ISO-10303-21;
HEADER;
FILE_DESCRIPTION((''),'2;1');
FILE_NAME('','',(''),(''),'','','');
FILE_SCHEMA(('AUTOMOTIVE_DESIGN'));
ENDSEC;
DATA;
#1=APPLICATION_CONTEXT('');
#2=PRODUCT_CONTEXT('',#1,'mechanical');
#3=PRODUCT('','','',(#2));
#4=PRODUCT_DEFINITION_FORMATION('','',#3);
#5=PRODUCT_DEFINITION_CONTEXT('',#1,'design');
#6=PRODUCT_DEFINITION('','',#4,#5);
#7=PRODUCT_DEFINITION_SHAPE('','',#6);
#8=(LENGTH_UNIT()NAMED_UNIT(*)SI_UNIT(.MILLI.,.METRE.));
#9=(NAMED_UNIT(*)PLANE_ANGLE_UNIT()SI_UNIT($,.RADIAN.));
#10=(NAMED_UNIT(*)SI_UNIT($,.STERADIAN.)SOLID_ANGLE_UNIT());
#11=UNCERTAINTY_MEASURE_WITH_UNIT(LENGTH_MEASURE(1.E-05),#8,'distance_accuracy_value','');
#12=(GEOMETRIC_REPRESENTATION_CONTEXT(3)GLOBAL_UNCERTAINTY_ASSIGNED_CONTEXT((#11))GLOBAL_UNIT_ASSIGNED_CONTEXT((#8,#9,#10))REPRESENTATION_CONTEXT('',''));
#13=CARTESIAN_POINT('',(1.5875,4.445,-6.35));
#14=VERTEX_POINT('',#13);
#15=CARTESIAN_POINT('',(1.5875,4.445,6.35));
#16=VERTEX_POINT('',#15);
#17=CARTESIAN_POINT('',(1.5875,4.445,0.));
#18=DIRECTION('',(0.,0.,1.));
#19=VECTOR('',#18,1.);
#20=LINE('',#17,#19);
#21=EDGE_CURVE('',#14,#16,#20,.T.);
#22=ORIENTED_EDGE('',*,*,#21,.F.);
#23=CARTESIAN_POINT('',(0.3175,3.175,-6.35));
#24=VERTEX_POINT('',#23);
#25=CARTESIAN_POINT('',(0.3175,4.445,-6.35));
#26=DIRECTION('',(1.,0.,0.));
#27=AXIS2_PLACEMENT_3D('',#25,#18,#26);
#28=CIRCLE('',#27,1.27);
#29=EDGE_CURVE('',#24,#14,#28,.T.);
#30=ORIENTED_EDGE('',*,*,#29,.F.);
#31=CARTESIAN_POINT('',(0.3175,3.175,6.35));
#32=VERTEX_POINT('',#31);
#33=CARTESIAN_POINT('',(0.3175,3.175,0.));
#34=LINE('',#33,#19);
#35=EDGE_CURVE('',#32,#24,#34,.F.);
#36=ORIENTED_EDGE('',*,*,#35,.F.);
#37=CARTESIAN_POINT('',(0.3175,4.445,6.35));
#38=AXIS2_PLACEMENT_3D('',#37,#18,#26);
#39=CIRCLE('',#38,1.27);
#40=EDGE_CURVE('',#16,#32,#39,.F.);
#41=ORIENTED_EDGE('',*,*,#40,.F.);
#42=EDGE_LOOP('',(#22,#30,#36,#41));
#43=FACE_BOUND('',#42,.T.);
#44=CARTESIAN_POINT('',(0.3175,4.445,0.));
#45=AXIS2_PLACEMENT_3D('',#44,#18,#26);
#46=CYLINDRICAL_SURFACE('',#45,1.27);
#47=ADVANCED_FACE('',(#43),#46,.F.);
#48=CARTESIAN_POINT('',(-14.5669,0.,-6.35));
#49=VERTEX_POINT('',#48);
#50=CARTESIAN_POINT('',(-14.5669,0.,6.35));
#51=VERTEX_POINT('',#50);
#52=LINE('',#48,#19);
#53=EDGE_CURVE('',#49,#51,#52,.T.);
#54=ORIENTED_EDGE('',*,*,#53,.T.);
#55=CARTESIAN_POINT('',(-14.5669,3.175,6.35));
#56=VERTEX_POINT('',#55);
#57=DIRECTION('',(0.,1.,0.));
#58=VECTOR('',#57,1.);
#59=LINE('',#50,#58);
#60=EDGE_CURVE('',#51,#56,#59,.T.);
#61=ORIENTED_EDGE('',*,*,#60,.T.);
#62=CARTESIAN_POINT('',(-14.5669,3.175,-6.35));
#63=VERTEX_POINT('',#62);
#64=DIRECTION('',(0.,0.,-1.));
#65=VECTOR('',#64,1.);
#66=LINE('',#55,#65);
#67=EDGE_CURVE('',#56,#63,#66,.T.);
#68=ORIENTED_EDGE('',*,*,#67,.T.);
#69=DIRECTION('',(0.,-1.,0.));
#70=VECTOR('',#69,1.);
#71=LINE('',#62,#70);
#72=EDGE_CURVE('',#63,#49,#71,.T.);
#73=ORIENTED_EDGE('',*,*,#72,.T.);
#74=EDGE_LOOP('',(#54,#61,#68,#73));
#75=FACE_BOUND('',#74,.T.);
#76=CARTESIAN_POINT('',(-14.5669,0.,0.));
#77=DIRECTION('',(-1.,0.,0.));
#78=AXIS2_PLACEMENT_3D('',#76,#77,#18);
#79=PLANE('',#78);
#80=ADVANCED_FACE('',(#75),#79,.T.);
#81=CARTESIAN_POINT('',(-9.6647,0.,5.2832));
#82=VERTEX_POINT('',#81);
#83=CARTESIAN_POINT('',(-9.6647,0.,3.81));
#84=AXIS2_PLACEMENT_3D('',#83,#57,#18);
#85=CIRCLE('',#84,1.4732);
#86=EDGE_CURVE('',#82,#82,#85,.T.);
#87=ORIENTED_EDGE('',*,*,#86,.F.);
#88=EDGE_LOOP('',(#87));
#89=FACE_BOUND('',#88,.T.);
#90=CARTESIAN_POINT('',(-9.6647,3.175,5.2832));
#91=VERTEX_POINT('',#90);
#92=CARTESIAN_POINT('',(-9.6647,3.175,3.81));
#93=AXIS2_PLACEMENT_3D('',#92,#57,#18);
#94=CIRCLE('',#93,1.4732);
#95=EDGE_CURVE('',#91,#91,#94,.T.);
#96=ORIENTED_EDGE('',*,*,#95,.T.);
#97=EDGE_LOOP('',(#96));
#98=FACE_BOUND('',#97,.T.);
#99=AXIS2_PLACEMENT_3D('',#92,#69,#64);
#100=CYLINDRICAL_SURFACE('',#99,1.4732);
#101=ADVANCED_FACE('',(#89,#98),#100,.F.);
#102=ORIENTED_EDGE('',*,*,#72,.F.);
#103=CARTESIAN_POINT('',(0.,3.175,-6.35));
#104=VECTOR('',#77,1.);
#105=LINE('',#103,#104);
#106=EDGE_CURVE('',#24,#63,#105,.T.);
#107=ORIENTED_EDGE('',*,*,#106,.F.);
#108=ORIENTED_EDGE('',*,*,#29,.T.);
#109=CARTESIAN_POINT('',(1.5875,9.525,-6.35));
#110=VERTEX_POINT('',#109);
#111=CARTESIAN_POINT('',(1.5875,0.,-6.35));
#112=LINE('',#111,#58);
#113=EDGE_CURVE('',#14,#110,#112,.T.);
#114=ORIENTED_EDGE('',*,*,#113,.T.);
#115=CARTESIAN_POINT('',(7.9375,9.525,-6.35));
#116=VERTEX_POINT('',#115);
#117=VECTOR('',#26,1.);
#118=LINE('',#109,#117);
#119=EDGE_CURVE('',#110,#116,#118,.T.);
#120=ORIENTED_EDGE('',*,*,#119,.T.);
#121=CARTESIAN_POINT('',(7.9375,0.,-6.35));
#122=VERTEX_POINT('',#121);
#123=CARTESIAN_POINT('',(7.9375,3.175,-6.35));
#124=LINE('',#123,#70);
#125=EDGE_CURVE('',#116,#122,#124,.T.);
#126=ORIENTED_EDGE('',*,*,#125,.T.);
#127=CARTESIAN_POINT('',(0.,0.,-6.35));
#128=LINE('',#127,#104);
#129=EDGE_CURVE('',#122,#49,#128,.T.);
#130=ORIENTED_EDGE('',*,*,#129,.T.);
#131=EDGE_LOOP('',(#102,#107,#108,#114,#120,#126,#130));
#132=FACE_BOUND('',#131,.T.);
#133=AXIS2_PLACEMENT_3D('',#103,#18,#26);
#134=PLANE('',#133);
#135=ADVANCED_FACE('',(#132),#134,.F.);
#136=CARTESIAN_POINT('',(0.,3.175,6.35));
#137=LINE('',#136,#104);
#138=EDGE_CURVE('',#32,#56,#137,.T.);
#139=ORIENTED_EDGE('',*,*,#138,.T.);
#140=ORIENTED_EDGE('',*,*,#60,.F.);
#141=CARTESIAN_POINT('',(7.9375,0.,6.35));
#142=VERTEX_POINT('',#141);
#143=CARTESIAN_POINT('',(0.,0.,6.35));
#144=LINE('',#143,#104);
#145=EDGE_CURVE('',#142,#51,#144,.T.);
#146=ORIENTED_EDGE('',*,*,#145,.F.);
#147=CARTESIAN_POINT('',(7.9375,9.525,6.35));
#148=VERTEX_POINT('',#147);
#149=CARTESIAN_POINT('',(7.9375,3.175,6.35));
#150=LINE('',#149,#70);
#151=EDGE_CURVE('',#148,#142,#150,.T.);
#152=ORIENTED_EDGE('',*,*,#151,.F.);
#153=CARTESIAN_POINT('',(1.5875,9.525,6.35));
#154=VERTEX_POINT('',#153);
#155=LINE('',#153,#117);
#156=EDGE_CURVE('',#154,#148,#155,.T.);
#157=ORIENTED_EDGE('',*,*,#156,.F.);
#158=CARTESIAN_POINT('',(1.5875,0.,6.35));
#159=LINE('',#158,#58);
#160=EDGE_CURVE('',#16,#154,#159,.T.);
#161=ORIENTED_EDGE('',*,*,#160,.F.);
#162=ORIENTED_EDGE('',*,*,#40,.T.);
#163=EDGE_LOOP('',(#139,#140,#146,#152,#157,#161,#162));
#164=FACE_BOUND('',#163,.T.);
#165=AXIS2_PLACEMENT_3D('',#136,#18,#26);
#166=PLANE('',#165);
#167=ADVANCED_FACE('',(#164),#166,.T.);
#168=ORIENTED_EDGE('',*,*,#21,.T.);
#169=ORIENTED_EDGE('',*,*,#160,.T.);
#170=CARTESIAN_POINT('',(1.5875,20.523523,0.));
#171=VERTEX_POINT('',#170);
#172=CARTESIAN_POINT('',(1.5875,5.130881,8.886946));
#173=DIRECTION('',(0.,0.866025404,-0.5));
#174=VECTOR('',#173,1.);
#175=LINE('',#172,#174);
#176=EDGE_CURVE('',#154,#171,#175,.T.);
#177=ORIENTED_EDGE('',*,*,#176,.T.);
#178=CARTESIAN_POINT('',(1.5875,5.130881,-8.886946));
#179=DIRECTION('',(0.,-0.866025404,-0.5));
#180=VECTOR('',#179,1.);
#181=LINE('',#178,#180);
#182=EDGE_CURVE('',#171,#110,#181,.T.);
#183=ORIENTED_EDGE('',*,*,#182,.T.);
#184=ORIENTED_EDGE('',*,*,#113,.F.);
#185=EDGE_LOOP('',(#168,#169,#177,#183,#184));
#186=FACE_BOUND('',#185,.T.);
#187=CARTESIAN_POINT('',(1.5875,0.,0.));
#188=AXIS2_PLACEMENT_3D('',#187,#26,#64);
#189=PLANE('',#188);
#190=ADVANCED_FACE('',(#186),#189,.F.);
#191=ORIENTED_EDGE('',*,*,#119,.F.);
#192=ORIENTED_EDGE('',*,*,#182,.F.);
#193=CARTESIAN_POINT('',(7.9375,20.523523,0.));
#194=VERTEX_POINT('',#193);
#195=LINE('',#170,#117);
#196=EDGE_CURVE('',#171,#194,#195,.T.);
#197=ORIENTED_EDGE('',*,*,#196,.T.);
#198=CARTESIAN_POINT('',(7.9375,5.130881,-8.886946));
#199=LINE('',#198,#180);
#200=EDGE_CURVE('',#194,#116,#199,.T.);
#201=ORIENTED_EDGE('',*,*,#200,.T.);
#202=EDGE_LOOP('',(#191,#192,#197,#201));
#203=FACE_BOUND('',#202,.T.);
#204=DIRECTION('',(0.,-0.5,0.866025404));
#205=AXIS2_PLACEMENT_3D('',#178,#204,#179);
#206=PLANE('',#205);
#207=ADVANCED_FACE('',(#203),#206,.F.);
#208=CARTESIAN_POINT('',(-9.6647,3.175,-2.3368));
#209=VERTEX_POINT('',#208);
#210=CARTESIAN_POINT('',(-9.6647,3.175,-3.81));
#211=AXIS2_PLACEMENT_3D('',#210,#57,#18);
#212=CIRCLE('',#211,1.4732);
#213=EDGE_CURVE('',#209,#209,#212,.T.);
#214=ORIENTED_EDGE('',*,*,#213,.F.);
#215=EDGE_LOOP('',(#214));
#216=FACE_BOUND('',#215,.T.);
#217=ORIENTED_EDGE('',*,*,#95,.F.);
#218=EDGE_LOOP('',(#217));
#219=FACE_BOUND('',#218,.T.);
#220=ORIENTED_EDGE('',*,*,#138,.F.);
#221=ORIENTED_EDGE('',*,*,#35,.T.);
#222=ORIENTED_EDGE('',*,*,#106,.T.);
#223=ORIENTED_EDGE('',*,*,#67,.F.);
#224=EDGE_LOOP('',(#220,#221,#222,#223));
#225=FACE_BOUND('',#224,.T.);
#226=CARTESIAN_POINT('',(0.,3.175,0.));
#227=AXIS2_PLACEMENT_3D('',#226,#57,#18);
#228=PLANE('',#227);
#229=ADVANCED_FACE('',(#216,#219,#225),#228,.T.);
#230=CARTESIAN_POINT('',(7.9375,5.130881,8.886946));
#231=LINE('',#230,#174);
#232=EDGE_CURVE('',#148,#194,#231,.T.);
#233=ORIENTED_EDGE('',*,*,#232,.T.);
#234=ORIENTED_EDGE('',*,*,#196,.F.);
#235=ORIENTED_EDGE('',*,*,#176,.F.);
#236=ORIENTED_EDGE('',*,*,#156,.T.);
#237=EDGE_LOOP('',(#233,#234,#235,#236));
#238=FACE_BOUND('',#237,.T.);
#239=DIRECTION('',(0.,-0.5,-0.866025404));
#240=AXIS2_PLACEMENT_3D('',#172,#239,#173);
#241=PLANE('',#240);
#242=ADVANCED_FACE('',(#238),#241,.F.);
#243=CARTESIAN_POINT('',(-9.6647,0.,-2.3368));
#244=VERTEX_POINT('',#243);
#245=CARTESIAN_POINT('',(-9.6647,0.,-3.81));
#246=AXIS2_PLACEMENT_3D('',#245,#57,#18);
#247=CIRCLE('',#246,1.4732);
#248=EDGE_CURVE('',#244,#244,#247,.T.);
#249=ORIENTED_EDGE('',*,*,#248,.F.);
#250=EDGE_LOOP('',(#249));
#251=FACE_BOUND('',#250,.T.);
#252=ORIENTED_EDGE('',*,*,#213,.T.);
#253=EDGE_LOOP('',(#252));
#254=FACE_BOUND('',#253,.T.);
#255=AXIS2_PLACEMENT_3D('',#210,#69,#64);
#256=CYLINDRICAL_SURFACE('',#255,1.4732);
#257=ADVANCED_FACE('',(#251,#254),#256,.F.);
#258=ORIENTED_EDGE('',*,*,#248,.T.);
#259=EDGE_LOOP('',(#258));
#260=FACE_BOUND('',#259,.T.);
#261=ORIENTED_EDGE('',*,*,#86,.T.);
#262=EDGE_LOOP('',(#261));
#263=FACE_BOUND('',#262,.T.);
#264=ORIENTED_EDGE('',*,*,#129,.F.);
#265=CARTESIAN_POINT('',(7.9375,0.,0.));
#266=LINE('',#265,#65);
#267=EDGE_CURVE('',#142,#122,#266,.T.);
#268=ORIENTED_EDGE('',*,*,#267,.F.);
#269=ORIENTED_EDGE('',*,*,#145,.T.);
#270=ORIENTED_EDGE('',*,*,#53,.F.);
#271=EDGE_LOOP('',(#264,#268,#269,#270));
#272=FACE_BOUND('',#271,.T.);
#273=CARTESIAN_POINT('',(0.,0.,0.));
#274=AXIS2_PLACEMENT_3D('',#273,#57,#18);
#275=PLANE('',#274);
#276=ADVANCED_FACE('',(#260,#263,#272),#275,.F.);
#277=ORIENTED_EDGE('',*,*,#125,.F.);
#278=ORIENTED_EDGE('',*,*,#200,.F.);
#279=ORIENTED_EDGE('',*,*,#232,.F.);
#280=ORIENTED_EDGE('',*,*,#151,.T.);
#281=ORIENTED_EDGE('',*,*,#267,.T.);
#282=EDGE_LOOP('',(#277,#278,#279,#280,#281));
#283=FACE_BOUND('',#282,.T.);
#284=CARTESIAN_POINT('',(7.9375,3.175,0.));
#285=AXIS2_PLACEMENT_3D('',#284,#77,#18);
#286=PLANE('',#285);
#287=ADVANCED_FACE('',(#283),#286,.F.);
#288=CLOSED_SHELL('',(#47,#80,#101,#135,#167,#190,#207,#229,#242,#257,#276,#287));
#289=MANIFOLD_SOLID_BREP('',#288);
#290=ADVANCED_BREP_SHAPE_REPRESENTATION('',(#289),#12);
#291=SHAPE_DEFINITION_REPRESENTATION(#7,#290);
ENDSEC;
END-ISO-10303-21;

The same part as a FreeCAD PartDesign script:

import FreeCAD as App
import Part
import Sketcher
Q = App.Units.Quantity


def edges_at(feature, points):
    """Names of the edges that pass closest to the given points."""
    edges = feature.Shape.Edges
    near = lambda p: min(range(len(edges)), key=lambda i: edges[i].distToShape(Part.Vertex(*p))[0])
    return sorted({f"Edge{near(p) + 1}" for p in points})


def add_polygon(sketch, points):
    """Adds a closed chain of lines whose ends are joined by coincident constraints."""
    first, n = sketch.GeometryCount, len(points)
    for a, b in zip(points, points[1:] + points[:1]):
        sketch.addGeometry(Part.LineSegment(App.Vector(*a, 0), App.Vector(*b, 0)), False)
    for i in range(n):
        sketch.addConstraint(Sketcher.Constraint("Coincident", first + i, 2, first + (i + 1) % n, 1))

doc = App.newDocument("Part")
body = doc.addObject("PartDesign::Body", "Body")

# Sketch on XZ plane
sketch1 = body.newObject("Sketcher::SketchObject", "Sketch")
sketch1.AttachmentSupport = (doc.getObject("XZ_Plane"), [""])
sketch1.MapMode = "FlatFace"
add_polygon(sketch1, [(-11.4, -6.3), (-11.4, 6.3), (7.9, 6.3), (7.9, -6.3)])  # lines 0-3
sketch1.addGeometry(Part.Circle(App.Vector(-9.7, 3.8, 0), App.Vector(0, 0, 1), 1.5), False)  # 4
sketch1.addGeometry(Part.Circle(App.Vector(-9.7, -3.8, 0), App.Vector(0, 0, 1), 1.5), False)  # 5
sketch1.addConstraint([
    Sketcher.Constraint("Vertical", 0),
    Sketcher.Constraint("Horizontal", 1),
    Sketcher.Constraint("Vertical", 2),
    Sketcher.Constraint("Horizontal", 3),
    Sketcher.Constraint("Equal", 4, 5),
    Sketcher.Constraint("Symmetric", 4, 3, 5, 3, -1),
    Sketcher.Constraint("Diameter", 4, Q("0.116 in")),
    Sketcher.Constraint("DistanceY", 0, 1, 0, 2, Q("0.5 in")),
    Sketcher.Constraint("DistanceY", 5, 3, 4, 3, Q("0.3 in")),
    Sketcher.Constraint("DistanceY", 4, 3, 0, 2, Q("0.1 in")),
    Sketcher.Constraint("DistanceX", 1, 1, 1, 2, Q("0.761 in")),
    Sketcher.Constraint("DistanceX", -1, 1, 1, 2, Q("0.3125 in")),
    Sketcher.Constraint("DistanceX", 0, 2, 4, 3, Q("0.068 in")),
])
pad1 = body.newObject("PartDesign::Pad", "Pad")
pad1.Profile = sketch1
pad1.Length = Q("0.125 in")
pad1.Reversed = True

# Sketch on YZ plane
sketch2 = body.newObject("Sketcher::SketchObject", "Sketch001")
sketch2.AttachmentSupport = (doc.getObject("YZ_Plane"), [""])
sketch2.MapMode = "FlatFace"
sketch2.AttachmentOffset = App.Placement(App.Vector(0, 0, 0.3125 * 25.4), App.Rotation())
add_polygon(sketch2, [(10, 6), (3, 6), (3, -6), (10, -6), (21, 0)])  # lines 0-4
sketch2.addConstraint([
    Sketcher.Constraint("Horizontal", 0),
    Sketcher.Constraint("Vertical", 1),
    Sketcher.Constraint("Horizontal", 2),
    Sketcher.Constraint("Symmetric", 2, 2, 4, 2, -1),
    Sketcher.Constraint("PointOnObject", 3, 2, -1),
    Sketcher.Constraint("DistanceY", 1, 2, 1, 1, Q("0.5 in")),
    Sketcher.Constraint("Angle", 3, Q("30 deg")),
    Sketcher.Constraint("DistanceX", 0, 2, 0, 1, Q("0.25 in")),
    Sketcher.Constraint("DistanceX", -1, 1, 0, 2, Q("0.125 in")),
])
pad2 = body.newObject("PartDesign::Pad", "Pad001")
pad2.Profile = sketch2
pad2.Length = Q("0.25 in")
pad2.Reversed = True

# Sketch on YZ plane
sketch3 = body.newObject("Sketcher::SketchObject", "Sketch002")
sketch3.AttachmentSupport = (doc.getObject("YZ_Plane"), [""])
sketch3.MapMode = "FlatFace"
sketch3.AttachmentOffset = App.Placement(App.Vector(0, 0, -0.4485 * 25.4), App.Rotation())
add_polygon(sketch3, [(3.2, -6.3), (0, -6.3), (0, 6.3), (3.2, 6.3)])  # lines 0-3
sketch3.addConstraint([
    Sketcher.Constraint("Horizontal", 0),
    Sketcher.Constraint("Vertical", 1),
    Sketcher.Constraint("Horizontal", 2),
    Sketcher.Constraint("Vertical", 3),
    Sketcher.Constraint("Symmetric", 0, 2, 1, 2, -1, 1),
    Sketcher.Constraint("DistanceY", 1, 1, 1, 2, Q("0.5 in")),
    Sketcher.Constraint("DistanceX", 0, 2, 0, 1, Q("0.125 in")),
])
pad3 = body.newObject("PartDesign::Pad", "Pad002")
pad3.Profile = sketch3
pad3.Length = Q("0.125 in")
pad3.Reversed = True
doc.recompute()

fillet = body.newObject("PartDesign::Fillet", "Fillet")
fillet.Base = (pad3, edges_at(pad3, [(1.587, 3.175, 0)]))
fillet.Radius = Q("0.05 in")

doc.recompute()
